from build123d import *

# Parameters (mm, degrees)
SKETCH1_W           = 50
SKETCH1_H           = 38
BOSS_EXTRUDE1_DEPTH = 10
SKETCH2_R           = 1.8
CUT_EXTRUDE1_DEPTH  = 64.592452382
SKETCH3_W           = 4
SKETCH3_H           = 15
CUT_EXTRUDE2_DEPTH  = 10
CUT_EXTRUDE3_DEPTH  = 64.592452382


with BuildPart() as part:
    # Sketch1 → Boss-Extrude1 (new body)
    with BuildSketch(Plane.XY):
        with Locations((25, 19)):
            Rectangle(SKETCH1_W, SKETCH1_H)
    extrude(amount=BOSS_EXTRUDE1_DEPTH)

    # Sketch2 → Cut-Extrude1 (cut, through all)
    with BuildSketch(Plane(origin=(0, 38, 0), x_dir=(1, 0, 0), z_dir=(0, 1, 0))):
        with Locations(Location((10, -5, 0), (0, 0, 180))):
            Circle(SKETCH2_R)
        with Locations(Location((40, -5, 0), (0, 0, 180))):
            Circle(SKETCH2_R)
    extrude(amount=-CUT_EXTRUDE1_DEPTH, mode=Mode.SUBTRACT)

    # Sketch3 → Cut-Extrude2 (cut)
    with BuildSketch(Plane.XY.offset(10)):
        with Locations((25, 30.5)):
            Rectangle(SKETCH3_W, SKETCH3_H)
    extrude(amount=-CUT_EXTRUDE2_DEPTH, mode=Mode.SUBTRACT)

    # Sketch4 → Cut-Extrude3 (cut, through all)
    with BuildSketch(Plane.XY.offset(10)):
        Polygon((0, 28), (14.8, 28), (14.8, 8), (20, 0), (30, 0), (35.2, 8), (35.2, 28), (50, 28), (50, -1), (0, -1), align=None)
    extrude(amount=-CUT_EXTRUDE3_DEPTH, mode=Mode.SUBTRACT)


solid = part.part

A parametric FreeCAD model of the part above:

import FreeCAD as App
import Part
import Sketcher

doc = App.newDocument("Part")
body = doc.addObject("PartDesign::Body", "Body")

sketch1 = body.newObject("Sketcher::SketchObject", "Sketch")
sketch1.AttachmentSupport = (doc.getObject("XY_Plane"), [""])
sketch1.MapMode = "FlatFace"
sketch1.addGeometry([
    Part.LineSegment(App.Vector(0, 38, 0), App.Vector(0, 0, 0)),
    Part.LineSegment(App.Vector(0, 0, 0), App.Vector(50, 0, 0)),
    Part.LineSegment(App.Vector(50, 0, 0), App.Vector(50, 38, 0)),
    Part.LineSegment(App.Vector(50, 38, 0), App.Vector(0, 38, 0)),
], False)
sketch1.addConstraint([
    Sketcher.Constraint("Coincident", 0, 2, 1, 1),
    Sketcher.Constraint("Coincident", 1, 2, 2, 1),
    Sketcher.Constraint("Coincident", 2, 2, 3, 1),
    Sketcher.Constraint("Coincident", 3, 2, 0, 1),
    Sketcher.Constraint("Vertical", 0),
    Sketcher.Constraint("Horizontal", 1),
    Sketcher.Constraint("Vertical", 2),
    Sketcher.Constraint("Horizontal", 3),
    Sketcher.Constraint("Coincident", 0, 2, -1, 1),
    Sketcher.Constraint("DistanceX", 1, 1, 1, 2, 50.0),
    Sketcher.Constraint("DistanceY", 0, 2, 0, 1, 38.0),
])
pad1 = body.newObject("PartDesign::Pad", "Pad")
pad1.Profile = sketch1
pad1.Length = 10

sketch2 = body.newObject("Sketcher::SketchObject", "Sketch001")
sketch2.AttachmentSupport = (doc.getObject("XZ_Plane"), [""])
sketch2.MapMode = "FlatFace"
sketch2.AttachmentOffset = App.Placement(App.Vector(0, 0, -38), App.Rotation())
sketch2.addGeometry([
    Part.Circle(App.Vector(10, 5, 0), App.Vector(0, 0, 1), 1.8),
    Part.Circle(App.Vector(40, 5, 0), App.Vector(0, 0, 1), 1.8),
], False)
sketch2.addConstraint([
    Sketcher.Constraint("Equal", 0, 1),
    Sketcher.Constraint("Horizontal", 0, 3, 1, 3),
    Sketcher.Constraint("Diameter", 0, 3.6),
    Sketcher.Constraint("DistanceX", -1, 1, 0, 3, 10.0),
    Sketcher.Constraint("DistanceY", -1, 1, 0, 3, 5.0),
    Sketcher.Constraint("DistanceX", -1, 1, 1, 3, 40.0),
])
pocket1 = body.newObject("PartDesign::Pocket", "Pocket")
pocket1.Profile = sketch2
pocket1.Type = "ThroughAll"
pocket1.Reversed = True

sketch3 = body.newObject("Sketcher::SketchObject", "Sketch002")
sketch3.AttachmentSupport = (doc.getObject("XY_Plane"), [""])
sketch3.MapMode = "FlatFace"
sketch3.AttachmentOffset = App.Placement(App.Vector(0, 0, 10), App.Rotation())
sketch3.addGeometry([
    Part.LineSegment(App.Vector(23, 38, 0), App.Vector(23, 23, 0)),
    Part.LineSegment(App.Vector(23, 23, 0), App.Vector(27, 23, 0)),
    Part.LineSegment(App.Vector(27, 23, 0), App.Vector(27, 38, 0)),
    Part.LineSegment(App.Vector(27, 38, 0), App.Vector(23, 38, 0)),
], False)
sketch3.addConstraint([
    Sketcher.Constraint("Coincident", 0, 2, 1, 1),
    Sketcher.Constraint("Coincident", 1, 2, 2, 1),
    Sketcher.Constraint("Coincident", 2, 2, 3, 1),
    Sketcher.Constraint("Coincident", 3, 2, 0, 1),
    Sketcher.Constraint("Vertical", 0),
    Sketcher.Constraint("Horizontal", 1),
    Sketcher.Constraint("Vertical", 2),
    Sketcher.Constraint("Horizontal", 3),
    Sketcher.Constraint("DistanceX", 1, 1, 1, 2, 4.0),
    Sketcher.Constraint("DistanceY", 0, 2, 0, 1, 15.0),
    Sketcher.Constraint("DistanceX", -1, 1, 0, 2, 23.0),
    Sketcher.Constraint("DistanceY", -1, 1, 0, 2, 23.0),
])
pocket2 = body.newObject("PartDesign::Pocket", "Pocket001")
pocket2.Profile = sketch3
pocket2.Length = 10

sketch4 = body.newObject("Sketcher::SketchObject", "Sketch003")
sketch4.AttachmentSupport = (doc.getObject("XY_Plane"), [""])
sketch4.MapMode = "FlatFace"
sketch4.AttachmentOffset = App.Placement(App.Vector(0, 0, 10), App.Rotation())
sketch4.addGeometry([
    Part.LineSegment(App.Vector(15, 28, 0), App.Vector(0, 28, 0)),
    Part.LineSegment(App.Vector(0, 28, 0), App.Vector(0, -1, 0)),
    Part.LineSegment(App.Vector(0, -1, 0), App.Vector(50, -1, 0)),
    Part.LineSegment(App.Vector(50, -1, 0), App.Vector(50, 28, 0)),
    Part.LineSegment(App.Vector(50, 28, 0), App.Vector(35, 28, 0)),
    Part.LineSegment(App.Vector(35, 28, 0), App.Vector(35, 8, 0)),
    Part.LineSegment(App.Vector(35, 8, 0), App.Vector(30, 0, 0)),
    Part.LineSegment(App.Vector(30, 0, 0), App.Vector(20, 0, 0)),
    Part.LineSegment(App.Vector(20, 0, 0), App.Vector(15, 8, 0)),
    Part.LineSegment(App.Vector(15, 8, 0), App.Vector(15, 28, 0)),
], False)
sketch4.addConstraint([
    Sketcher.Constraint("Coincident", 0, 2, 1, 1),
    Sketcher.Constraint("Coincident", 1, 2, 2, 1),
    Sketcher.Constraint("Coincident", 2, 2, 3, 1),
    Sketcher.Constraint("Coincident", 3, 2, 4, 1),
    Sketcher.Constraint("Coincident", 4, 2, 5, 1),
    Sketcher.Constraint("Coincident", 5, 2, 6, 1),
    Sketcher.Constraint("Coincident", 6, 2, 7, 1),
    Sketcher.Constraint("Coincident", 7, 2, 8, 1),
    Sketcher.Constraint("Coincident", 8, 2, 9, 1),
    Sketcher.Constraint("Coincident", 9, 2, 0, 1),
    Sketcher.Constraint("Horizontal", 0),
    Sketcher.Constraint("Vertical", 1),
    Sketcher.Constraint("Horizontal", 2),
    Sketcher.Constraint("Vertical", 3),
    Sketcher.Constraint("Horizontal", 4),
    Sketcher.Constraint("Vertical", 5),
    Sketcher.Constraint("Horizontal", 7),
    Sketcher.Constraint("Vertical", 9),
    Sketcher.Constraint("PointOnObject", 0, 2, -2),
    Sketcher.Constraint("PointOnObject", 6, 2, -1),
    Sketcher.Constraint("Horizontal", 0, 2, 3, 2),
    Sketcher.Constraint("Horizontal", 5, 2, 8, 2),
    Sketcher.Constraint("Equal", 0, 4),
    Sketcher.Constraint("Equal", 6, 8),
    Sketcher.Constraint("DistanceX", 2, 1, 2, 2, 50.0),
    Sketcher.Constraint("DistanceX", 7, 2, 7, 1, 10.0),
    Sketcher.Constraint("DistanceY", 1, 2, 1, 1, 29.0),
    Sketcher.Constraint("DistanceY", 5, 2, 5, 1, 20.0),
    Sketcher.Constraint("DistanceX", 0, 2, 0, 1, 14.8),
    Sketcher.Constraint("DistanceY", -1, 1, 0, 2, 28.0),
])
pocket3 = body.newObject("PartDesign::Pocket", "Pocket002")
pocket3.Profile = sketch4
pocket3.Type = "ThroughAll"

doc.recompute()
